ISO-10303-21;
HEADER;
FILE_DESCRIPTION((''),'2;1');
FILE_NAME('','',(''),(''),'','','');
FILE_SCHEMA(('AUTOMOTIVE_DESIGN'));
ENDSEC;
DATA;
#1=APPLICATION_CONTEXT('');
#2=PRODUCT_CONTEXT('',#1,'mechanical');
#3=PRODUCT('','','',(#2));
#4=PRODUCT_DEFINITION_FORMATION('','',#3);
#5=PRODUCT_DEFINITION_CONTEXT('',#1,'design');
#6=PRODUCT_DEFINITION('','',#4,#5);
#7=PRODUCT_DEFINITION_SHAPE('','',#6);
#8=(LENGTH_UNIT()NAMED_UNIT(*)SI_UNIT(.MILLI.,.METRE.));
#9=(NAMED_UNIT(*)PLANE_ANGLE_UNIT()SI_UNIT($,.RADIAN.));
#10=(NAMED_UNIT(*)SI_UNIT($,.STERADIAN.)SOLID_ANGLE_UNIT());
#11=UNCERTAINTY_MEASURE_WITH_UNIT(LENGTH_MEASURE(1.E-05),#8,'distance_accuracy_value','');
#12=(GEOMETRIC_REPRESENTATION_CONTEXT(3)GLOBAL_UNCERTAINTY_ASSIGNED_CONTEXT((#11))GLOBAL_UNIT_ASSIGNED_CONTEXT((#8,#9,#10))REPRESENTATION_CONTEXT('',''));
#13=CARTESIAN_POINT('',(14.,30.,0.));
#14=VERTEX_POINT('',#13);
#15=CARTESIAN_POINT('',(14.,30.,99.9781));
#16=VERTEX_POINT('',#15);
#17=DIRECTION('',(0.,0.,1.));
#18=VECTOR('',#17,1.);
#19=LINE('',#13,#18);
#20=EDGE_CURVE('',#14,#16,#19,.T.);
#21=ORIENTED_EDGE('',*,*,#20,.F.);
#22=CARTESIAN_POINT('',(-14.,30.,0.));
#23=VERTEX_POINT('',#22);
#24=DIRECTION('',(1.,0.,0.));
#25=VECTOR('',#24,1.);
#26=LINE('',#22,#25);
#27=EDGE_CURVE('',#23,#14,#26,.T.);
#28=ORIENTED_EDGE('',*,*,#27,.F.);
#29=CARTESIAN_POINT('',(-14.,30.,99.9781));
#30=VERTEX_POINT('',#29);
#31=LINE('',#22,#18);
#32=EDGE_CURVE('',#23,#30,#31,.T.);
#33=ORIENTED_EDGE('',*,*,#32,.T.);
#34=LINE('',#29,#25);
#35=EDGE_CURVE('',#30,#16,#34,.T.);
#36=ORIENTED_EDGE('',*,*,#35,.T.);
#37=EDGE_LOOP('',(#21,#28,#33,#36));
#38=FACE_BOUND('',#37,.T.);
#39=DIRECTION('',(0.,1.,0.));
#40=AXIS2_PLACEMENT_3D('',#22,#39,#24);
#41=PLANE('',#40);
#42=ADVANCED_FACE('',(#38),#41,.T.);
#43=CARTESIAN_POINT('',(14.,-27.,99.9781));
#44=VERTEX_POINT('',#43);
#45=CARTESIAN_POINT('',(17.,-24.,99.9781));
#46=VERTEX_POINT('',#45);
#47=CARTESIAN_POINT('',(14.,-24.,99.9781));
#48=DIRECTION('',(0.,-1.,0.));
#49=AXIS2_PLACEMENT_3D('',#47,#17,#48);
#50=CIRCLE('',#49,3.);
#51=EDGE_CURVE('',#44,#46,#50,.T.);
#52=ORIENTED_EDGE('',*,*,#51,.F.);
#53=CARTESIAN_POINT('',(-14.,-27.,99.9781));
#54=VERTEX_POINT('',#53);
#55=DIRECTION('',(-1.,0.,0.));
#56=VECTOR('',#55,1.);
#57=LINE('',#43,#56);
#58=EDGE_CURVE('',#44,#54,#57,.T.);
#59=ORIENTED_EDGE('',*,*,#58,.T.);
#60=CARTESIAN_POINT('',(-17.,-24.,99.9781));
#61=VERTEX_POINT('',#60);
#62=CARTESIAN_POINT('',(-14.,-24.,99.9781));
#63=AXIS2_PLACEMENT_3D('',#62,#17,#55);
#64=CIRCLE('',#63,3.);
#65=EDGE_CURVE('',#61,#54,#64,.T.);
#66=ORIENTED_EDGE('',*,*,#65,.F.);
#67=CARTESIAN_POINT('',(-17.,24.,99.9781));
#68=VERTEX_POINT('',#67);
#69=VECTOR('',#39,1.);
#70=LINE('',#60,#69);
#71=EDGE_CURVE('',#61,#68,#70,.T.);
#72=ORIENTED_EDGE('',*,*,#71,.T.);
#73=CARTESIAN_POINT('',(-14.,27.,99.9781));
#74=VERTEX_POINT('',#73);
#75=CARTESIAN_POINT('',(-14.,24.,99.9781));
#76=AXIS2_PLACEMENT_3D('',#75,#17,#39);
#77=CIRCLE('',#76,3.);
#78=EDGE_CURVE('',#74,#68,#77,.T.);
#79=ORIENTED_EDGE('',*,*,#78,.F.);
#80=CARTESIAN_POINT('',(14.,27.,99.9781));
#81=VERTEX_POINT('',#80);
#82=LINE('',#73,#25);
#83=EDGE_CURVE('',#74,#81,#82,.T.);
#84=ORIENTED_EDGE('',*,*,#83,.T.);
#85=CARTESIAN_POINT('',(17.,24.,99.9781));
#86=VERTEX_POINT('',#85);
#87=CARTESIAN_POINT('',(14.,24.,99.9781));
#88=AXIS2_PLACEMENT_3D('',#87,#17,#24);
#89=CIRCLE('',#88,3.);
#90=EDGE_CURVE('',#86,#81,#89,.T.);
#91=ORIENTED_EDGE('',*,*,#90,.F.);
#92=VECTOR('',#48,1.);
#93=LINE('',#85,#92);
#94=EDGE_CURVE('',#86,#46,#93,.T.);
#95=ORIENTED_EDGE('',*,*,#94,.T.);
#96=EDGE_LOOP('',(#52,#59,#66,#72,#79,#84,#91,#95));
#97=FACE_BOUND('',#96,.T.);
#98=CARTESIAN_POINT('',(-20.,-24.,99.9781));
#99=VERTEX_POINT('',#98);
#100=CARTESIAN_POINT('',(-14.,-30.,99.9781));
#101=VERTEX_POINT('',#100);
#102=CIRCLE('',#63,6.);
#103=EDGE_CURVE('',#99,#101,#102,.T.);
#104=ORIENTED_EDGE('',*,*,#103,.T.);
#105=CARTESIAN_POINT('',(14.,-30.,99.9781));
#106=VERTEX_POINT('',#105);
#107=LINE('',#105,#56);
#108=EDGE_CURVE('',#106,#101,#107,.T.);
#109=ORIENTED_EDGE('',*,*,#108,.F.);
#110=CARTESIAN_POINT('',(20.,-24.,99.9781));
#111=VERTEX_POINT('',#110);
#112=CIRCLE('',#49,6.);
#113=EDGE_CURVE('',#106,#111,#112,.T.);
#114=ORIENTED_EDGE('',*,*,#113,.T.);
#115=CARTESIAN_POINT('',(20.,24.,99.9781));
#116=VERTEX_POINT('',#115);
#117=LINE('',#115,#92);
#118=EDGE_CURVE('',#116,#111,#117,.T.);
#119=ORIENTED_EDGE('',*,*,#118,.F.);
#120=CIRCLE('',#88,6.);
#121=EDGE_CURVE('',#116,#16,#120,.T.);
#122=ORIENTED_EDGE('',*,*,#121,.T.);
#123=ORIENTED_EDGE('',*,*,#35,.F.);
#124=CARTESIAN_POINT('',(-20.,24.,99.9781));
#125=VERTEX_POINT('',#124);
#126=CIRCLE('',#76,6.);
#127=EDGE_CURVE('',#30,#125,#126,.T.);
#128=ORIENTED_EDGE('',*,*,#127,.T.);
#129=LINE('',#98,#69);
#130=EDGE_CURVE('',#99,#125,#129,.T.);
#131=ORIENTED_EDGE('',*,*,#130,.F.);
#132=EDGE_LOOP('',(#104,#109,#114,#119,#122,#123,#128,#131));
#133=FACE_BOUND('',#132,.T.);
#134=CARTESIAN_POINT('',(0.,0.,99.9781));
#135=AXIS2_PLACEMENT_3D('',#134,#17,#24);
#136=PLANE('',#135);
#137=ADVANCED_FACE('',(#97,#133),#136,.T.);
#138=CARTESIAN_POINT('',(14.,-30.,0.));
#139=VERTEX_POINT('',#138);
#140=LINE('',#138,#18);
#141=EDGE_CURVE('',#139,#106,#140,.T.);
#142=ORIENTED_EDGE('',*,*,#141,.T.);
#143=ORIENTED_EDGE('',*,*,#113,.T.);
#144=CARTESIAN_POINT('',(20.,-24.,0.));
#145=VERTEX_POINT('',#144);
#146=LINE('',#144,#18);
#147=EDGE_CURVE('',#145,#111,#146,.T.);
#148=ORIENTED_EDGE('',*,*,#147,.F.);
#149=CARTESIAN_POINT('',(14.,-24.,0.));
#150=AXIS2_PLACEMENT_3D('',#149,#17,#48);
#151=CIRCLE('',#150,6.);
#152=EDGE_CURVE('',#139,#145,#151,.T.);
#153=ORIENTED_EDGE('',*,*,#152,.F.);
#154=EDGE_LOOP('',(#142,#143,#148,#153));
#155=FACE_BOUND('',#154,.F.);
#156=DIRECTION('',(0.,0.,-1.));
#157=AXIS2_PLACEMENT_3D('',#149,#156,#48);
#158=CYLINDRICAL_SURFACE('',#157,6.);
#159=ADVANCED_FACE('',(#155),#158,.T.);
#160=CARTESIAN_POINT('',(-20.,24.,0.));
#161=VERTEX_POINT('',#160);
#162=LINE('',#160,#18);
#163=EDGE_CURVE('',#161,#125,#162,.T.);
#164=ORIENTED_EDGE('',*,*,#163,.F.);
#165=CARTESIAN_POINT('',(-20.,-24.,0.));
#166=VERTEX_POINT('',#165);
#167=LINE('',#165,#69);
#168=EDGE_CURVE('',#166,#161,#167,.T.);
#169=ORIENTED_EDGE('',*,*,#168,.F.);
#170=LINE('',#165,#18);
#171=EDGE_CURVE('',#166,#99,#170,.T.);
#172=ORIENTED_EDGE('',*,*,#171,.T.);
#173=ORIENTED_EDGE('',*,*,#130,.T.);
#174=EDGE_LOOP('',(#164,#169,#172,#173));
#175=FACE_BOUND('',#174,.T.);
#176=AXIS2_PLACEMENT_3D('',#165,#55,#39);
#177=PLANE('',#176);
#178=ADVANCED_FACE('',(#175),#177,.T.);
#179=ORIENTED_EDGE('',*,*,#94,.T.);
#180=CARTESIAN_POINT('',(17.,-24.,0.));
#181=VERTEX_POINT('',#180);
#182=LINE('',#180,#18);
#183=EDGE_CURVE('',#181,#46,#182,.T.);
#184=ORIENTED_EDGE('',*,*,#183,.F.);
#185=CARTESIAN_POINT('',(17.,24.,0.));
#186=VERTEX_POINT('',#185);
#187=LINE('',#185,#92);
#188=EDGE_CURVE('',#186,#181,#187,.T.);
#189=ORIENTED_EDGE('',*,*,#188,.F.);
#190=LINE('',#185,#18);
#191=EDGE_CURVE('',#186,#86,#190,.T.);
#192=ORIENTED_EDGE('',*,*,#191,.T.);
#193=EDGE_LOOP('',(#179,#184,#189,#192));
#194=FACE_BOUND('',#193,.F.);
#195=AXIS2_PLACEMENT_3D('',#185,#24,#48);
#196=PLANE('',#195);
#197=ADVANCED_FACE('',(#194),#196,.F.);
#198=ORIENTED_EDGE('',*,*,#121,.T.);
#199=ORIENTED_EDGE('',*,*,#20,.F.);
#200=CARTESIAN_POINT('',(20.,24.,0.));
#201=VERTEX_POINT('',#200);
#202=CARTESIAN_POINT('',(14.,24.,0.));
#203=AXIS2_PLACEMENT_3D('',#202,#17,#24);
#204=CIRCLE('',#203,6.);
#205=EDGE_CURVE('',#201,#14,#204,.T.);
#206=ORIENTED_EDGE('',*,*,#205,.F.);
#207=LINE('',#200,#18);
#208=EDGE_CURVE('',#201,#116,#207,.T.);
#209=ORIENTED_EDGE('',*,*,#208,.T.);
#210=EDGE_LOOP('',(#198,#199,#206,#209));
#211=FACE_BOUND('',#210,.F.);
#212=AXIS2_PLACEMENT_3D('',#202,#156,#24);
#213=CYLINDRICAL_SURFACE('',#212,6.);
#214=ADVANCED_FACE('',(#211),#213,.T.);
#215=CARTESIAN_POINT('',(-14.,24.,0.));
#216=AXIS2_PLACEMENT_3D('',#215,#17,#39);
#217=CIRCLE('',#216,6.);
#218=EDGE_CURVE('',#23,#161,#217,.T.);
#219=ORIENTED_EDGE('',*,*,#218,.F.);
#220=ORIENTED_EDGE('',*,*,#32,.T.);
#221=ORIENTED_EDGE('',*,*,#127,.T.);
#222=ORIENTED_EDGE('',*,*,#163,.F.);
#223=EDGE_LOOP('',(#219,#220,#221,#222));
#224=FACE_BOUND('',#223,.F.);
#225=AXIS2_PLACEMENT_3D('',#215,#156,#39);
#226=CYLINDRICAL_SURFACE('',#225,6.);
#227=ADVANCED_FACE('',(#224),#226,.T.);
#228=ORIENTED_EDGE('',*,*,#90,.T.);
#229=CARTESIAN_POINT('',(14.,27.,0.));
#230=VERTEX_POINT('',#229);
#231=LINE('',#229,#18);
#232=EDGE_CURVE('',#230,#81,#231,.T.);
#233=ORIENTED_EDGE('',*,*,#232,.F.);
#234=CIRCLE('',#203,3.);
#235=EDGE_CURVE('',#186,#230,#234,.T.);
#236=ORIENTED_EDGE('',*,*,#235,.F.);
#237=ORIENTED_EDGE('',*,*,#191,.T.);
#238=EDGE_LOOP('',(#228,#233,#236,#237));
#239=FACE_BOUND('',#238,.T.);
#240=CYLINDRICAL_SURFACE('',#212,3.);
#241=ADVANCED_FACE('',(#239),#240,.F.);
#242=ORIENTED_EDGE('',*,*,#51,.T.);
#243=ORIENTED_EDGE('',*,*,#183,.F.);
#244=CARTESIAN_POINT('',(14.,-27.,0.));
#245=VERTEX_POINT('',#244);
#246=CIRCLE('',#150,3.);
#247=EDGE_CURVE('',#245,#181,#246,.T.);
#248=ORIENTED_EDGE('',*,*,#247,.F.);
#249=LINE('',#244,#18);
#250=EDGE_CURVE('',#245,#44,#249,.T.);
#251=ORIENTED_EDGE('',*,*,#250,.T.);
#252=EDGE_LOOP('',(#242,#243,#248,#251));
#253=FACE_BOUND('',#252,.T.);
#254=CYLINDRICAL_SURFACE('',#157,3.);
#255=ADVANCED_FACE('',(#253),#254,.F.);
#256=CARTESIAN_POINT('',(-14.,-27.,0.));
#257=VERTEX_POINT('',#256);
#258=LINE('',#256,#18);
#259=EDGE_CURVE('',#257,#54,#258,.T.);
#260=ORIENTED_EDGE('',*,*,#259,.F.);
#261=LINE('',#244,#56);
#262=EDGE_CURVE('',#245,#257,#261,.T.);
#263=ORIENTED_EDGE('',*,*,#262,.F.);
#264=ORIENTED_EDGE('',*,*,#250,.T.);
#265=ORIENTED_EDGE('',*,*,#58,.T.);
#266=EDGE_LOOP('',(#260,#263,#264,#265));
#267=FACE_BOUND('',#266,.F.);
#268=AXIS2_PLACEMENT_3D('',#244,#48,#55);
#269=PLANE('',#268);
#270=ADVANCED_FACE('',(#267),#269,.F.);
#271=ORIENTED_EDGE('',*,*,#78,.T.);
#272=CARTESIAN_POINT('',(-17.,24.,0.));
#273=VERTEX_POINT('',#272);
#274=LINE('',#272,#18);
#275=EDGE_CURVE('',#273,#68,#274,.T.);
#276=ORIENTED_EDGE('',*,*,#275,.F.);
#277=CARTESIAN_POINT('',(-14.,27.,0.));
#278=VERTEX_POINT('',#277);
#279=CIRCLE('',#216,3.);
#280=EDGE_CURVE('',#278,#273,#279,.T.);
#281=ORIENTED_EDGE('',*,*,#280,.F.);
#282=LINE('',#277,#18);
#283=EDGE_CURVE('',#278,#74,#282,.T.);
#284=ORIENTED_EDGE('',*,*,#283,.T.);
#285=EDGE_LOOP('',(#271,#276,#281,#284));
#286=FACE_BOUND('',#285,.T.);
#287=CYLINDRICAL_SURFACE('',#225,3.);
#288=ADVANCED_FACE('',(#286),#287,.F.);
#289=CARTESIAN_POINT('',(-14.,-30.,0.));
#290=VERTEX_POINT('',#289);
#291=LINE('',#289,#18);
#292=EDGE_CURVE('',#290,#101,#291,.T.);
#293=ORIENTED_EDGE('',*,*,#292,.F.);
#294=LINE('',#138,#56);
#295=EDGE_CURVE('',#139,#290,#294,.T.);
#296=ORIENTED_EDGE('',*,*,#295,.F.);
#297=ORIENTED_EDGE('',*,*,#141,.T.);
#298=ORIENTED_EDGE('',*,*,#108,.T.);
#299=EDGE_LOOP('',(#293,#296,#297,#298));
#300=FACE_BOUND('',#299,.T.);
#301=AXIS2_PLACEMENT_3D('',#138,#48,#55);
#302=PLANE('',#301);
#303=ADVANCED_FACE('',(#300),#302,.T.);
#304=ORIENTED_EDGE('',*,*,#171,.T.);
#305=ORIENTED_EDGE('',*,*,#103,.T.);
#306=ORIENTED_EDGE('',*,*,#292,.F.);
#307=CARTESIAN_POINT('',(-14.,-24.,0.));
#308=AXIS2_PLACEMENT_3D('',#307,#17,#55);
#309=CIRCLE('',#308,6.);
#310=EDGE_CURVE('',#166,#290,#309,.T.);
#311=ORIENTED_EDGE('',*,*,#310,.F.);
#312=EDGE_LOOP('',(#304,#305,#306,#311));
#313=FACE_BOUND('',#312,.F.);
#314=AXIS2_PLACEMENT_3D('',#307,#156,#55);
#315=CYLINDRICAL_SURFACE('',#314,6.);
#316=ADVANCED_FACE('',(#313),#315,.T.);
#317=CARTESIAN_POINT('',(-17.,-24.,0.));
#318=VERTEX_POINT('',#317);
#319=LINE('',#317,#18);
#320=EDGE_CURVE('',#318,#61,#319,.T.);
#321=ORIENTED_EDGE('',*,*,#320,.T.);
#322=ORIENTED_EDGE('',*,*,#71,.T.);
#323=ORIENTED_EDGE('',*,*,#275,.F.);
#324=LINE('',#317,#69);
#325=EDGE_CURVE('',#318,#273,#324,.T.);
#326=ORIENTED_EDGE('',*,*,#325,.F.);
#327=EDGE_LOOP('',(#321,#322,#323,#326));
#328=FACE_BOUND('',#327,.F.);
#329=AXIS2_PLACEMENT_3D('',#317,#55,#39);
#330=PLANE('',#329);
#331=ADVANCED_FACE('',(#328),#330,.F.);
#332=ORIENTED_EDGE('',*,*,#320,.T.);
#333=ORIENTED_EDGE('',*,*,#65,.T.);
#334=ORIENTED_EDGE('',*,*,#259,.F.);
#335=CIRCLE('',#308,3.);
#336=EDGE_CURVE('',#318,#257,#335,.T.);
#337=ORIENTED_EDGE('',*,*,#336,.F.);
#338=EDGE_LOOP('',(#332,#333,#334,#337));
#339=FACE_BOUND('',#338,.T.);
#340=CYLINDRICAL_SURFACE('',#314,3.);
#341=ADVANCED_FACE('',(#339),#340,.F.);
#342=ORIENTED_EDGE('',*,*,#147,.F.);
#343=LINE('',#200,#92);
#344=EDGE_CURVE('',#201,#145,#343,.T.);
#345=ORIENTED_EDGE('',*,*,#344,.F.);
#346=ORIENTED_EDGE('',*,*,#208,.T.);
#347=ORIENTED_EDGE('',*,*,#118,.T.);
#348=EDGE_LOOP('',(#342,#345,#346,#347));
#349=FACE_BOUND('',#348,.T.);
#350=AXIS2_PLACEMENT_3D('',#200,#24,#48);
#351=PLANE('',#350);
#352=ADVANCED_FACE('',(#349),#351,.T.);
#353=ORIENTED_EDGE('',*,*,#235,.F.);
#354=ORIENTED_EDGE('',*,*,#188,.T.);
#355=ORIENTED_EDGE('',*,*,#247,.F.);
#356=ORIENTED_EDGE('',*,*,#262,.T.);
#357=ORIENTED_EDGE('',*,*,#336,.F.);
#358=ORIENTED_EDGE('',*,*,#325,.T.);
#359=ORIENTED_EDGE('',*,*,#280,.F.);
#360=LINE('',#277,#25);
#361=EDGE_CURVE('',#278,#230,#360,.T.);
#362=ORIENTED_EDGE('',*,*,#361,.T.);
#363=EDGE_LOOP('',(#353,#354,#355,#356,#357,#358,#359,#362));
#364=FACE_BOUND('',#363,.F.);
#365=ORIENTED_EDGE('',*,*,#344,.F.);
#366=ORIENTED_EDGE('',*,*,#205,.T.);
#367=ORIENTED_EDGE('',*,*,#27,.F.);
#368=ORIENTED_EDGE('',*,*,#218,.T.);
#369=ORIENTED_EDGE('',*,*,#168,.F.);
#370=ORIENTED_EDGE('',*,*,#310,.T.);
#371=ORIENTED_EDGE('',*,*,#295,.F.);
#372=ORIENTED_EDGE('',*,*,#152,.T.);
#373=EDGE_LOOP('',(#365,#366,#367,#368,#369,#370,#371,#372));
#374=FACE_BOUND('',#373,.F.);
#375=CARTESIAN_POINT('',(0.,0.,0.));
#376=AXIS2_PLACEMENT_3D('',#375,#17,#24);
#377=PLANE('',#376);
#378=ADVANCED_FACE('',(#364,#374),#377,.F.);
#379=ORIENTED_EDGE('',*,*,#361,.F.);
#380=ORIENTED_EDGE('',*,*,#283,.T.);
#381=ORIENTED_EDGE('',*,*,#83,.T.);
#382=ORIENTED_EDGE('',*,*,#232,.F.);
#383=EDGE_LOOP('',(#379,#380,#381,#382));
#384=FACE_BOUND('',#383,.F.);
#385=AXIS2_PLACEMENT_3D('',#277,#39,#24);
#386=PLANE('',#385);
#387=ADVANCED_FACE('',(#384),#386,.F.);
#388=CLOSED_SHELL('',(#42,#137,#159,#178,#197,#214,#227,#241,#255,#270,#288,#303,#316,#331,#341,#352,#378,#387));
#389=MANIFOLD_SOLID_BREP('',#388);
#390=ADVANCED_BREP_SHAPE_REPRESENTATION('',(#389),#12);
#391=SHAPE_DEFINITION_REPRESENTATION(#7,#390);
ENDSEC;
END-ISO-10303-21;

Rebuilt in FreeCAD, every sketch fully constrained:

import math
import FreeCAD as App
import Part
import Sketcher
from FreeCAD import Vector
Q = App.Units.Quantity

doc = App.newDocument("Part")
body = doc.addObject("PartDesign::Body", "Body")

# Sketch on XY plane
sketch1 = body.newObject("Sketcher::SketchObject", "Sketch")
sketch1.AttachmentSupport = (doc.getObject("XY_Plane"), [""])
sketch1.MapMode = "FlatFace"
sketch1.addGeometry(Part.LineSegment(Vector(-20, 24, 0), Vector(-20, -24, 0)), False)
sketch1.addGeometry(Part.ArcOfCircle(Part.Circle(Vector(-14, -24, 0), Vector(0, 0, 1), 6), math.radians(180), math.radians(270)), False)
sketch1.addGeometry(Part.LineSegment(Vector(-14, -30, 0), Vector(14, -30, 0)), False)
sketch1.addGeometry(Part.ArcOfCircle(Part.Circle(Vector(14, -24, 0), Vector(0, 0, 1), 6), math.radians(-90), math.radians(0)), False)
sketch1.addGeometry(Part.LineSegment(Vector(20, -24, 0), Vector(20, 24, 0)), False)
sketch1.addGeometry(Part.ArcOfCircle(Part.Circle(Vector(14, 24, 0), Vector(0, 0, 1), 6), math.radians(0), math.radians(90)), False)
sketch1.addGeometry(Part.LineSegment(Vector(14, 30, 0), Vector(-14, 30, 0)), False)
sketch1.addGeometry(Part.ArcOfCircle(Part.Circle(Vector(-14, 24, 0), Vector(0, 0, 1), 6), math.radians(90), math.radians(180)), False)
sketch1.addGeometry(Part.ArcOfCircle(Part.Circle(Vector(-14, 24, 0), Vector(0, 0, 1), 3), math.radians(90), math.radians(180)), False)
sketch1.addGeometry(Part.LineSegment(Vector(-14, 27, 0), Vector(14, 27, 0)), False)
sketch1.addGeometry(Part.ArcOfCircle(Part.Circle(Vector(14, 24, 0), Vector(0, 0, 1), 3), math.radians(0), math.radians(90)), False)
sketch1.addGeometry(Part.LineSegment(Vector(17, 24, 0), Vector(17, -24, 0)), False)
sketch1.addGeometry(Part.ArcOfCircle(Part.Circle(Vector(14, -24, 0), Vector(0, 0, 1), 3), math.radians(-90), math.radians(0)), False)
sketch1.addGeometry(Part.LineSegment(Vector(14, -27, 0), Vector(-14, -27, 0)), False)
sketch1.addGeometry(Part.ArcOfCircle(Part.Circle(Vector(-14, -24, 0), Vector(0, 0, 1), 3), math.radians(180), math.radians(270)), False)
sketch1.addGeometry(Part.LineSegment(Vector(-17, -24, 0), Vector(-17, 24, 0)), False)
sketch1.addConstraint(Sketcher.Constraint("Tangent", 0, 2, 1, 1))
sketch1.addConstraint(Sketcher.Constraint("Tangent", 1, 2, 2, 1))
sketch1.addConstraint(Sketcher.Constraint("Tangent", 2, 2, 3, 1))
sketch1.addConstraint(Sketcher.Constraint("Tangent", 3, 2, 4, 1))
sketch1.addConstraint(Sketcher.Constraint("Tangent", 4, 2, 5, 1))
sketch1.addConstraint(Sketcher.Constraint("Tangent", 5, 2, 6, 1))
sketch1.addConstraint(Sketcher.Constraint("Tangent", 6, 2, 7, 1))
sketch1.addConstraint(Sketcher.Constraint("Tangent", 7, 2, 0, 1))
sketch1.addConstraint(Sketcher.Constraint("Tangent", 8, 1, 9, 1))
sketch1.addConstraint(Sketcher.Constraint("Tangent", 9, 2, 10, 2))
sketch1.addConstraint(Sketcher.Constraint("Tangent", 10, 1, 11, 1))
sketch1.addConstraint(Sketcher.Constraint("Tangent", 11, 2, 12, 2))
sketch1.addConstraint(Sketcher.Constraint("Tangent", 12, 1, 13, 1))
sketch1.addConstraint(Sketcher.Constraint("Tangent", 13, 2, 14, 2))
sketch1.addConstraint(Sketcher.Constraint("Tangent", 14, 1, 15, 1))
sketch1.addConstraint(Sketcher.Constraint("Tangent", 15, 2, 8, 2))
sketch1.addConstraint(Sketcher.Constraint("Vertical", 0))
sketch1.addConstraint(Sketcher.Constraint("Horizontal", 2))
sketch1.addConstraint(Sketcher.Constraint("Vertical", 4))
sketch1.addConstraint(Sketcher.Constraint("Horizontal", 6))
sketch1.addConstraint(Sketcher.Constraint("Horizontal", 9))
sketch1.addConstraint(Sketcher.Constraint("Vertical", 11))
sketch1.addConstraint(Sketcher.Constraint("Horizontal", 13))
sketch1.addConstraint(Sketcher.Constraint("Vertical", 15))
sketch1.addConstraint(Sketcher.Constraint("Coincident", 8, 3, 7, 3))
sketch1.addConstraint(Sketcher.Constraint("Coincident", 10, 3, 5, 3))
sketch1.addConstraint(Sketcher.Constraint("Coincident", 12, 3, 3, 3))
sketch1.addConstraint(Sketcher.Constraint("Equal", 1, 3))
sketch1.addConstraint(Sketcher.Constraint("Equal", 3, 5))
sketch1.addConstraint(Sketcher.Constraint("Equal", 5, 7))
sketch1.addConstraint(Sketcher.Constraint("Equal", 12, 14))
sketch1.addConstraint(Sketcher.Constraint("Symmetric", 1, 3, 5, 3, -1, 1))
sketch1.addConstraint(Sketcher.Constraint("Radius", 1, Q("6 mm")))
sketch1.addConstraint(Sketcher.Constraint("Radius", 8, Q("3 mm")))
sketch1.addConstraint(Sketcher.Constraint("DistanceX", 0, 2, -1, 1, Q("20 mm")))
sketch1.addConstraint(Sketcher.Constraint("DistanceY", 1, 2, -1, 1, Q("30 mm")))
pad1 = body.newObject("PartDesign::Pad", "Pad")
pad1.Profile = sketch1
pad1.Length = 99.9781

doc.recompute()
